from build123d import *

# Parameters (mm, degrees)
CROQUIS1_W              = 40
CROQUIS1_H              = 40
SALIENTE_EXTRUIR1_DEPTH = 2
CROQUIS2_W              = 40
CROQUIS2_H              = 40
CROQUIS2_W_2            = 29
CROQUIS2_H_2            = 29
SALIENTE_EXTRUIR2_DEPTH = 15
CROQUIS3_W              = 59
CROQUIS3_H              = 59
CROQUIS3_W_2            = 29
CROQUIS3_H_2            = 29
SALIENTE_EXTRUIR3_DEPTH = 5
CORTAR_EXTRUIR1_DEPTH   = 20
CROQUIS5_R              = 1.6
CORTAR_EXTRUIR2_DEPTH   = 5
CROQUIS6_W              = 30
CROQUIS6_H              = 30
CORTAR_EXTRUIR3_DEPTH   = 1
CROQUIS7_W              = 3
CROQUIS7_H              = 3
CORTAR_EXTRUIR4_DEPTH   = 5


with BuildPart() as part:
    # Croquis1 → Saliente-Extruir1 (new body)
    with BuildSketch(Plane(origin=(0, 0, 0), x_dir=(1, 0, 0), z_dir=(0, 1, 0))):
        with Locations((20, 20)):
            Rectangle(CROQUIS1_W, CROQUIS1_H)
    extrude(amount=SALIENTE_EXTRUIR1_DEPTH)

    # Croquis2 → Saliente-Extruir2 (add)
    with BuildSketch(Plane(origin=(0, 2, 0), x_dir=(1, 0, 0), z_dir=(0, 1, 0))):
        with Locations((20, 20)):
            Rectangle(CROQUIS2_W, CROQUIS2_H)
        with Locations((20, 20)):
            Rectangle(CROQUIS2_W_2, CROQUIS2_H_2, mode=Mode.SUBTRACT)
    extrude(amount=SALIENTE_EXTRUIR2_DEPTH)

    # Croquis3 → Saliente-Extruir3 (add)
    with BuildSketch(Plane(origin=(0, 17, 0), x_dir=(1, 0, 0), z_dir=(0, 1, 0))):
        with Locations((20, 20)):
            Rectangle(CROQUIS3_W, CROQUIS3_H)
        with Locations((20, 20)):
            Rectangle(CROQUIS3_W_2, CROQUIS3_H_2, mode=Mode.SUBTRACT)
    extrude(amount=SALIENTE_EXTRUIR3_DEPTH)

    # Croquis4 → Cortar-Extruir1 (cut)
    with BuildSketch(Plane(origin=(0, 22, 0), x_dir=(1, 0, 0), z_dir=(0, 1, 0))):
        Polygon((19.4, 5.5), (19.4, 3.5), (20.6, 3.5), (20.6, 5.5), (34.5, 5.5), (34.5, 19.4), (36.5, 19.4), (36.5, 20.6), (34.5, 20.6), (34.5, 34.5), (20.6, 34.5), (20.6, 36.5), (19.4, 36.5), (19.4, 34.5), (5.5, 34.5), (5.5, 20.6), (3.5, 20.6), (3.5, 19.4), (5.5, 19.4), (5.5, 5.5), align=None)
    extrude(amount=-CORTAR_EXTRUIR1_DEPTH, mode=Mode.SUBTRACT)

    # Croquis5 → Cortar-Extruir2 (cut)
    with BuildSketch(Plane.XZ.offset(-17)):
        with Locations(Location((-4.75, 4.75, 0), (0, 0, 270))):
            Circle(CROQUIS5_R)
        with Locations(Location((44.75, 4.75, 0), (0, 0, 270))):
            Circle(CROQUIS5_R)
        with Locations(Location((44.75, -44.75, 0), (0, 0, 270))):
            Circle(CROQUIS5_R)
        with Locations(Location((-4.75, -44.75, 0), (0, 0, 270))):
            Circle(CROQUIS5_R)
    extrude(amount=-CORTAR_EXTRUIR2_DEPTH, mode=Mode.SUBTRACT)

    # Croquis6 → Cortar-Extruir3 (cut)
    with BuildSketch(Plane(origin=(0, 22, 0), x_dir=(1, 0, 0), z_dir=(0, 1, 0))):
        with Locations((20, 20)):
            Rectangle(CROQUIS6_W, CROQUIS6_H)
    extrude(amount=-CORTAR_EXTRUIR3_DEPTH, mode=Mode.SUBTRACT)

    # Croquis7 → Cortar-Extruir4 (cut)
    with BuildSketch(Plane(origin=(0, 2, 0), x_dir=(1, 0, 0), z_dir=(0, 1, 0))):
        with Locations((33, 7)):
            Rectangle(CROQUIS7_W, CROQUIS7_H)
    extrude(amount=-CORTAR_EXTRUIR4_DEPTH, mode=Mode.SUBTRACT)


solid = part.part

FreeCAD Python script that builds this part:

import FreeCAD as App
import Part
import Sketcher

V = App.Vector
Q = App.Units.Quantity

doc = App.newDocument("Part")
params = doc.addObject("Spreadsheet::Sheet", "Params")
for row, (alias, value) in enumerate([
    ("sketch1_width", "40 mm"),
    ("pad1_length", "2 mm"),
    ("sketch2_width", "40 mm"),
    ("sketch2_width2", "29 mm"),
    ("pad2_length", "15 mm"),
    ("sketch3_width", "59 mm"),
    ("sketch3_width2", "29 mm"),
    ("pad3_length", "5 mm"),
    ("sketch4_width", "2 mm"),
    ("sketch4_width2", "1.2 mm"),
    ("sketch4_width3", "13.9 mm"),
    ("pocket1_length", "20 mm"),
    ("sketch5_diameter", "3.2 mm"),
    ("pocket2_length", "5 mm"),
    ("sketch6_width", "30 mm"),
    ("pocket3_length", "1 mm"),
    ("sketch7_width", "3 mm"),
    ("pocket4_length", "5 mm"),
], start=1):
    params.set(f"A{row}", alias)
    params.set(f"B{row}", "=" + value)
    params.setAlias(f"B{row}", alias)

body = doc.addObject("PartDesign::Body", "Body")

sketch1 = body.newObject("Sketcher::SketchObject", "Sketch")
sketch1.AttachmentSupport = (doc.getObject("XZ_Plane"), [""])
sketch1.MapMode = "FlatFace"
sketch1.addGeometry(Part.LineSegment(V(0, -40, 0), V(0, 0, 0)), False)
sketch1.addGeometry(Part.LineSegment(V(0, 0, 0), V(40, 0, 0)), False)
sketch1.addGeometry(Part.LineSegment(V(40, 0, 0), V(40, -40, 0)), False)
sketch1.addGeometry(Part.LineSegment(V(40, -40, 0), V(0, -40, 0)), False)
sketch1.addConstraint(Sketcher.Constraint("Coincident", 0, 2, 1, 1))
sketch1.addConstraint(Sketcher.Constraint("Coincident", 1, 2, 2, 1))
sketch1.addConstraint(Sketcher.Constraint("Coincident", 2, 2, 3, 1))
sketch1.addConstraint(Sketcher.Constraint("Coincident", 3, 2, 0, 1))
sketch1.addConstraint(Sketcher.Constraint("Vertical", 0))
sketch1.addConstraint(Sketcher.Constraint("Horizontal", 1))
sketch1.addConstraint(Sketcher.Constraint("Vertical", 2))
sketch1.addConstraint(Sketcher.Constraint("Horizontal", 3))
sketch1.addConstraint(Sketcher.Constraint("Coincident", 0, 2, -1, 1))
sketch1.addConstraint(Sketcher.Constraint("Equal", 3, 0))
sketch1.addConstraint(Sketcher.Constraint("DistanceX", 1, 1, 1, 2, Q("40 mm")))
sketch1.setExpression("Constraints[10]", "Params.sketch1_width")
pad1 = body.newObject("PartDesign::Pad", "Pad")
pad1.Profile = sketch1
pad1.setExpression("Length", "Params.pad1_length")
pad1.Reversed = True

sketch2 = body.newObject("Sketcher::SketchObject", "Sketch001")
sketch2.AttachmentSupport = (doc.getObject("XZ_Plane"), [""])
sketch2.MapMode = "FlatFace"
sketch2.AttachmentOffset = App.Placement(V(0, 0, -2), App.Rotation())
sketch2.addGeometry(Part.LineSegment(V(0, -40, 0), V(0, 0, 0)), False)
sketch2.addGeometry(Part.LineSegment(V(0, 0, 0), V(40, 0, 0)), False)
sketch2.addGeometry(Part.LineSegment(V(40, 0, 0), V(40, -40, 0)), False)
sketch2.addGeometry(Part.LineSegment(V(40, -40, 0), V(0, -40, 0)), False)
sketch2.addGeometry(Part.LineSegment(V(34, -6, 0), V(6, -6, 0)), False)
sketch2.addGeometry(Part.LineSegment(V(6, -6, 0), V(6, -34, 0)), False)
sketch2.addGeometry(Part.LineSegment(V(6, -34, 0), V(34, -34, 0)), False)
sketch2.addGeometry(Part.LineSegment(V(34, -34, 0), V(34, -6, 0)), False)
sketch2.addConstraint(Sketcher.Constraint("Coincident", 0, 2, 1, 1))
sketch2.addConstraint(Sketcher.Constraint("Coincident", 1, 2, 2, 1))
sketch2.addConstraint(Sketcher.Constraint("Coincident", 2, 2, 3, 1))
sketch2.addConstraint(Sketcher.Constraint("Coincident", 3, 2, 0, 1))
sketch2.addConstraint(Sketcher.Constraint("Coincident", 4, 2, 5, 1))
sketch2.addConstraint(Sketcher.Constraint("Coincident", 5, 2, 6, 1))
sketch2.addConstraint(Sketcher.Constraint("Coincident", 6, 2, 7, 1))
sketch2.addConstraint(Sketcher.Constraint("Coincident", 7, 2, 4, 1))
sketch2.addConstraint(Sketcher.Constraint("Vertical", 0))
sketch2.addConstraint(Sketcher.Constraint("Horizontal", 1))
sketch2.addConstraint(Sketcher.Constraint("Vertical", 2))
sketch2.addConstraint(Sketcher.Constraint("Horizontal", 3))
sketch2.addConstraint(Sketcher.Constraint("Horizontal", 4))
sketch2.addConstraint(Sketcher.Constraint("Vertical", 5))
sketch2.addConstraint(Sketcher.Constraint("Horizontal", 6))
sketch2.addConstraint(Sketcher.Constraint("Vertical", 7))
sketch2.addConstraint(Sketcher.Constraint("Coincident", 0, 2, -1, 1))
sketch2.addConstraint(Sketcher.Constraint("Equal", 3, 0))
sketch2.addConstraint(Sketcher.Constraint("Equal", 6, 5))
sketch2.addConstraint(Sketcher.Constraint("DistanceX", 1, 1, 1, 2, Q("40 mm")))
sketch2.addConstraint(Sketcher.Constraint("DistanceX", 4, 2, 4, 1, Q("29 mm")))
sketch2.addConstraint(Sketcher.Constraint("DistanceX", -1, 1, 4, 2, Q("5.5 mm")))
sketch2.addConstraint(Sketcher.Constraint("DistanceY", 4, 2, -1, 1, Q("5.5 mm")))
sketch2.setExpression("Constraints[19]", "Params.sketch2_width")
sketch2.setExpression("Constraints[20]", "Params.sketch2_width2")
pad2 = body.newObject("PartDesign::Pad", "Pad001")
pad2.Profile = sketch2
pad2.setExpression("Length", "Params.pad2_length")
pad2.Reversed = True

sketch3 = body.newObject("Sketcher::SketchObject", "Sketch002")
sketch3.AttachmentSupport = (doc.getObject("XZ_Plane"), [""])
sketch3.MapMode = "FlatFace"
sketch3.AttachmentOffset = App.Placement(V(0, 0, -17), App.Rotation())
sketch3.addGeometry(Part.LineSegment(V(-10, -50, 0), V(-10, 10, 0)), False)
sketch3.addGeometry(Part.LineSegment(V(-10, 10, 0), V(50, 10, 0)), False)
sketch3.addGeometry(Part.LineSegment(V(50, 10, 0), V(50, -50, 0)), False)
sketch3.addGeometry(Part.LineSegment(V(50, -50, 0), V(-10, -50, 0)), False)
sketch3.addGeometry(Part.LineSegment(V(34, -6, 0), V(6, -6, 0)), False)
sketch3.addGeometry(Part.LineSegment(V(6, -6, 0), V(6, -34, 0)), False)
sketch3.addGeometry(Part.LineSegment(V(6, -34, 0), V(34, -34, 0)), False)
sketch3.addGeometry(Part.LineSegment(V(34, -34, 0), V(34, -6, 0)), False)
sketch3.addConstraint(Sketcher.Constraint("Coincident", 0, 2, 1, 1))
sketch3.addConstraint(Sketcher.Constraint("Coincident", 1, 2, 2, 1))
sketch3.addConstraint(Sketcher.Constraint("Coincident", 2, 2, 3, 1))
sketch3.addConstraint(Sketcher.Constraint("Coincident", 3, 2, 0, 1))
sketch3.addConstraint(Sketcher.Constraint("Coincident", 4, 2, 5, 1))
sketch3.addConstraint(Sketcher.Constraint("Coincident", 5, 2, 6, 1))
sketch3.addConstraint(Sketcher.Constraint("Coincident", 6, 2, 7, 1))
sketch3.addConstraint(Sketcher.Constraint("Coincident", 7, 2, 4, 1))
sketch3.addConstraint(Sketcher.Constraint("Vertical", 0))
sketch3.addConstraint(Sketcher.Constraint("Horizontal", 1))
sketch3.addConstraint(Sketcher.Constraint("Vertical", 2))
sketch3.addConstraint(Sketcher.Constraint("Horizontal", 3))
sketch3.addConstraint(Sketcher.Constraint("Horizontal", 4))
sketch3.addConstraint(Sketcher.Constraint("Vertical", 5))
sketch3.addConstraint(Sketcher.Constraint("Horizontal", 6))
sketch3.addConstraint(Sketcher.Constraint("Vertical", 7))
sketch3.addConstraint(Sketcher.Constraint("Equal", 3, 0))
sketch3.addConstraint(Sketcher.Constraint("Equal", 6, 5))
sketch3.addConstraint(Sketcher.Constraint("DistanceX", 1, 1, 1, 2, Q("59 mm")))
sketch3.addConstraint(Sketcher.Constraint("DistanceX", 4, 2, 4, 1, Q("29 mm")))
sketch3.addConstraint(Sketcher.Constraint("DistanceX", 0, 2, 4, 2, Q("15 mm")))
sketch3.addConstraint(Sketcher.Constraint("DistanceY", 4, 2, 0, 2, Q("15 mm")))
sketch3.addConstraint(Sketcher.Constraint("DistanceX", 0, 2, -1, 1, Q("9.5 mm")))
sketch3.addConstraint(Sketcher.Constraint("DistanceY", -1, 1, 0, 2, Q("9.5 mm")))
sketch3.setExpression("Constraints[18]", "Params.sketch3_width")
sketch3.setExpression("Constraints[19]", "Params.sketch3_width2")
pad3 = body.newObject("PartDesign::Pad", "Pad002")
pad3.Profile = sketch3
pad3.setExpression("Length", "Params.pad3_length")
pad3.Reversed = True

sketch4 = body.newObject("Sketcher::SketchObject", "Sketch003")
sketch4.AttachmentSupport = (doc.getObject("XZ_Plane"), [""])
sketch4.MapMode = "FlatFace"
sketch4.AttachmentOffset = App.Placement(V(0, 0, -22), App.Rotation())
sketch4.addGeometry(Part.LineSegment(V(19.4, -5.5, 0), V(19.4, -3.5, 0)), False)
sketch4.addGeometry(Part.LineSegment(V(19.4, -3.5, 0), V(20.6, -3.5, 0)), False)
sketch4.addGeometry(Part.LineSegment(V(20.6, -3.5, 0), V(20.6, -5.5, 0)), False)
sketch4.addGeometry(Part.LineSegment(V(20.6, -5.5, 0), V(34.5, -5.5, 0)), False)
sketch4.addGeometry(Part.LineSegment(V(34.5, -5.5, 0), V(34.5, -19.4, 0)), False)
sketch4.addGeometry(Part.LineSegment(V(34.5, -19.4, 0), V(36.5, -19.4, 0)), False)
sketch4.addGeometry(Part.LineSegment(V(36.5, -19.4, 0), V(36.5, -20.6, 0)), False)
sketch4.addGeometry(Part.LineSegment(V(36.5, -20.6, 0), V(34.5, -20.6, 0)), False)
sketch4.addGeometry(Part.LineSegment(V(34.5, -20.6, 0), V(34.5, -34.5, 0)), False)
sketch4.addGeometry(Part.LineSegment(V(34.5, -34.5, 0), V(20.6, -34.5, 0)), False)
sketch4.addGeometry(Part.LineSegment(V(20.6, -34.5, 0), V(20.6, -36.5, 0)), False)
sketch4.addGeometry(Part.LineSegment(V(20.6, -36.5, 0), V(19.4, -36.5, 0)), False)
sketch4.addGeometry(Part.LineSegment(V(19.4, -36.5, 0), V(19.4, -34.5, 0)), False)
sketch4.addGeometry(Part.LineSegment(V(19.4, -34.5, 0), V(5.5, -34.5, 0)), False)
sketch4.addGeometry(Part.LineSegment(V(5.5, -34.5, 0), V(5.5, -20.6, 0)), False)
sketch4.addGeometry(Part.LineSegment(V(5.5, -20.6, 0), V(3.5, -20.6, 0)), False)
sketch4.addGeometry(Part.LineSegment(V(3.5, -20.6, 0), V(3.5, -19.4, 0)), False)
sketch4.addGeometry(Part.LineSegment(V(3.5, -19.4, 0), V(5.5, -19.4, 0)), False)
sketch4.addGeometry(Part.LineSegment(V(5.5, -19.4, 0), V(5.5, -5.5, 0)), False)
sketch4.addGeometry(Part.LineSegment(V(5.5, -5.5, 0), V(19.4, -5.5, 0)), False)
sketch4.addConstraint(Sketcher.Constraint("Coincident", 0, 2, 1, 1))
sketch4.addConstraint(Sketcher.Constraint("Coincident", 1, 2, 2, 1))
sketch4.addConstraint(Sketcher.Constraint("Coincident", 2, 2, 3, 1))
sketch4.addConstraint(Sketcher.Constraint("Coincident", 3, 2, 4, 1))
sketch4.addConstraint(Sketcher.Constraint("Coincident", 4, 2, 5, 1))
sketch4.addConstraint(Sketcher.Constraint("Coincident", 5, 2, 6, 1))
sketch4.addConstraint(Sketcher.Constraint("Coincident", 6, 2, 7, 1))
sketch4.addConstraint(Sketcher.Constraint("Coincident", 7, 2, 8, 1))
sketch4.addConstraint(Sketcher.Constraint("Coincident", 8, 2, 9, 1))
sketch4.addConstraint(Sketcher.Constraint("Coincident", 9, 2, 10, 1))
sketch4.addConstraint(Sketcher.Constraint("Coincident", 10, 2, 11, 1))
sketch4.addConstraint(Sketcher.Constraint("Coincident", 11, 2, 12, 1))
sketch4.addConstraint(Sketcher.Constraint("Coincident", 12, 2, 13, 1))
sketch4.addConstraint(Sketcher.Constraint("Coincident", 13, 2, 14, 1))
sketch4.addConstraint(Sketcher.Constraint("Coincident", 14, 2, 15, 1))
sketch4.addConstraint(Sketcher.Constraint("Coincident", 15, 2, 16, 1))
sketch4.addConstraint(Sketcher.Constraint("Coincident", 16, 2, 17, 1))
sketch4.addConstraint(Sketcher.Constraint("Coincident", 17, 2, 18, 1))
sketch4.addConstraint(Sketcher.Constraint("Coincident", 18, 2, 19, 1))
sketch4.addConstraint(Sketcher.Constraint("Coincident", 19, 2, 0, 1))
sketch4.addConstraint(Sketcher.Constraint("Vertical", 0))
sketch4.addConstraint(Sketcher.Constraint("Horizontal", 1))
sketch4.addConstraint(Sketcher.Constraint("Vertical", 2))
sketch4.addConstraint(Sketcher.Constraint("Horizontal", 3))
sketch4.addConstraint(Sketcher.Constraint("Vertical", 4))
sketch4.addConstraint(Sketcher.Constraint("Horizontal", 5))
sketch4.addConstraint(Sketcher.Constraint("Vertical", 6))
sketch4.addConstraint(Sketcher.Constraint("Horizontal", 7))
sketch4.addConstraint(Sketcher.Constraint("Vertical", 8))
sketch4.addConstraint(Sketcher.Constraint("Horizontal", 9))
sketch4.addConstraint(Sketcher.Constraint("Vertical", 10))
sketch4.addConstraint(Sketcher.Constraint("Horizontal", 11))
sketch4.addConstraint(Sketcher.Constraint("Vertical", 12))
sketch4.addConstraint(Sketcher.Constraint("Horizontal", 13))
sketch4.addConstraint(Sketcher.Constraint("Vertical", 14))
sketch4.addConstraint(Sketcher.Constraint("Horizontal", 15))
sketch4.addConstraint(Sketcher.Constraint("Vertical", 16))
sketch4.addConstraint(Sketcher.Constraint("Horizontal", 17))
sketch4.addConstraint(Sketcher.Constraint("Vertical", 18))
sketch4.addConstraint(Sketcher.Constraint("Horizontal", 19))
sketch4.addConstraint(Sketcher.Constraint("Horizontal", 9, 2, 12, 2))
sketch4.addConstraint(Sketcher.Constraint("Horizontal", 7, 2, 14, 2))
sketch4.addConstraint(Sketcher.Constraint("Horizontal", 5, 2, 16, 2))
sketch4.addConstraint(Sketcher.Constraint("Horizontal", 3, 2, 18, 2))
sketch4.addConstraint(Sketcher.Constraint("Vertical", 4, 2, 7, 2))
sketch4.addConstraint(Sketcher.Constraint("Vertical", 2, 2, 9, 2))
sketch4.addConstraint(Sketcher.Constraint("Vertical", 0, 2, 11, 2))
sketch4.addConstraint(Sketcher.Constraint("Vertical", 14, 2, 17, 2))
sketch4.addConstraint(Sketcher.Constraint("Equal", 9, 13))
sketch4.addConstraint(Sketcher.Constraint("Equal", 7, 15))
sketch4.addConstraint(Sketcher.Constraint("Equal", 17, 0))
sketch4.addConstraint(Sketcher.Constraint("Equal", 19, 4))
sketch4.addConstraint(Sketcher.Constraint("Equal", 11, 6))
sketch4.addConstraint(Sketcher.Constraint("Equal", 4, 8))
sketch4.addConstraint(Sketcher.Constraint("Equal", 2, 10))
sketch4.addConstraint(Sketcher.Constraint("DistanceX", 5, 1, 5, 2, Q("2 mm")))
sketch4.addConstraint(Sketcher.Constraint("DistanceX", 1, 1, 1, 2, Q("1.2 mm")))
sketch4.addConstraint(Sketcher.Constraint("DistanceX", 3, 1, 3, 2, Q("13.9 mm")))
sketch4.addConstraint(Sketcher.Constraint("DistanceX", -1, 1, 0, 2, Q("19.4 mm")))
sketch4.addConstraint(Sketcher.Constraint("DistanceY", 0, 2, -1, 1, Q("3.5 mm")))
sketch4.setExpression("Constraints[55]", "Params.sketch4_width")
sketch4.setExpression("Constraints[56]", "Params.sketch4_width2")
sketch4.setExpression("Constraints[57]", "Params.sketch4_width3")
pocket1 = body.newObject("PartDesign::Pocket", "Pocket")
pocket1.Profile = sketch4
pocket1.setExpression("Length", "Params.pocket1_length")
pocket1.Reversed = True

sketch5 = body.newObject("Sketcher::SketchObject", "Sketch004")
sketch5.AttachmentSupport = (doc.getObject("XZ_Plane"), [""])
sketch5.MapMode = "FlatFace"
sketch5.AttachmentOffset = App.Placement(V(0, 0, -17), App.Rotation())
sketch5.addGeometry(Part.Circle(V(-4.8, 4.8, 0), V(0, 0, 1), 1.6), False)
sketch5.addGeometry(Part.Circle(V(44.8, 4.8, 0), V(0, 0, 1), 1.6), False)
sketch5.addGeometry(Part.Circle(V(44.8, -44.8, 0), V(0, 0, 1), 1.6), False)
sketch5.addGeometry(Part.Circle(V(-4.8, -44.8, 0), V(0, 0, 1), 1.6), False)
sketch5.addConstraint(Sketcher.Constraint("Equal", 0, 1))
sketch5.addConstraint(Sketcher.Constraint("Equal", 1, 2))
sketch5.addConstraint(Sketcher.Constraint("Equal", 2, 3))
sketch5.addConstraint(Sketcher.Constraint("Horizontal", 0, 3, 1, 3))
sketch5.addConstraint(Sketcher.Constraint("Horizontal", 2, 3, 3, 3))
sketch5.addConstraint(Sketcher.Constraint("Vertical", 1, 3, 2, 3))
sketch5.addConstraint(Sketcher.Constraint("Vertical", 0, 3, 3, 3))
sketch5.addConstraint(Sketcher.Constraint("Diameter", 0, Q("3.2 mm")))
sketch5.addConstraint(Sketcher.Constraint("DistanceX", 0, 3, 1, 3, Q("49.5 mm")))
sketch5.addConstraint(Sketcher.Constraint("DistanceY", 2, 3, 1, 3, Q("49.5 mm")))
sketch5.addConstraint(Sketcher.Constraint("DistanceX", 0, 3, -1, 1, Q("4.75 mm")))
sketch5.addConstraint(Sketcher.Constraint("DistanceY", -1, 1, 0, 3, Q("4.75 mm")))
sketch5.setExpression("Constraints[7]", "Params.sketch5_diameter")
pocket2 = body.newObject("PartDesign::Pocket", "Pocket001")
pocket2.Profile = sketch5
pocket2.setExpression("Length", "Params.pocket2_length")

sketch6 = body.newObject("Sketcher::SketchObject", "Sketch005")
sketch6.AttachmentSupport = (doc.getObject("XZ_Plane"), [""])
sketch6.MapMode = "FlatFace"
sketch6.AttachmentOffset = App.Placement(V(0, 0, -22), App.Rotation())
sketch6.addGeometry(Part.LineSegment(V(5, -35, 0), V(5, -5, 0)), False)
sketch6.addGeometry(Part.LineSegment(V(5, -5, 0), V(35, -5, 0)), False)
sketch6.addGeometry(Part.LineSegment(V(35, -5, 0), V(35, -35, 0)), False)
sketch6.addGeometry(Part.LineSegment(V(35, -35, 0), V(5, -35, 0)), False)
sketch6.addConstraint(Sketcher.Constraint("Coincident", 0, 2, 1, 1))
sketch6.addConstraint(Sketcher.Constraint("Coincident", 1, 2, 2, 1))
sketch6.addConstraint(Sketcher.Constraint("Coincident", 2, 2, 3, 1))
sketch6.addConstraint(Sketcher.Constraint("Coincident", 3, 2, 0, 1))
sketch6.addConstraint(Sketcher.Constraint("Vertical", 0))
sketch6.addConstraint(Sketcher.Constraint("Horizontal", 1))
sketch6.addConstraint(Sketcher.Constraint("Vertical", 2))
sketch6.addConstraint(Sketcher.Constraint("Horizontal", 3))
sketch6.addConstraint(Sketcher.Constraint("Equal", 3, 0))
sketch6.addConstraint(Sketcher.Constraint("DistanceX", 1, 1, 1, 2, Q("30 mm")))
sketch6.addConstraint(Sketcher.Constraint("DistanceX", -1, 1, 0, 2, Q("5 mm")))
sketch6.addConstraint(Sketcher.Constraint("DistanceY", 0, 2, -1, 1, Q("5 mm")))
sketch6.setExpression("Constraints[9]", "Params.sketch6_width")
pocket3 = body.newObject("PartDesign::Pocket", "Pocket002")
pocket3.Profile = sketch6
pocket3.setExpression("Length", "Params.pocket3_length")
pocket3.Reversed = True

sketch7 = body.newObject("Sketcher::SketchObject", "Sketch006")
sketch7.AttachmentSupport = (doc.getObject("XZ_Plane"), [""])
sketch7.MapMode = "FlatFace"
sketch7.AttachmentOffset = App.Placement(V(0, 0, -2), App.Rotation())
sketch7.addGeometry(Part.LineSegment(V(31.5, -8.5, 0), V(31.5, -5.5, 0)), False)
sketch7.addGeometry(Part.LineSegment(V(31.5, -5.5, 0), V(34.5, -5.5, 0)), False)
sketch7.addGeometry(Part.LineSegment(V(34.5, -5.5, 0), V(34.5, -8.5, 0)), False)
sketch7.addGeometry(Part.LineSegment(V(34.5, -8.5, 0), V(31.5, -8.5, 0)), False)
sketch7.addConstraint(Sketcher.Constraint("Coincident", 0, 2, 1, 1))
sketch7.addConstraint(Sketcher.Constraint("Coincident", 1, 2, 2, 1))
sketch7.addConstraint(Sketcher.Constraint("Coincident", 2, 2, 3, 1))
sketch7.addConstraint(Sketcher.Constraint("Coincident", 3, 2, 0, 1))
sketch7.addConstraint(Sketcher.Constraint("Vertical", 0))
sketch7.addConstraint(Sketcher.Constraint("Horizontal", 1))
sketch7.addConstraint(Sketcher.Constraint("Vertical", 2))
sketch7.addConstraint(Sketcher.Constraint("Horizontal", 3))
sketch7.addConstraint(Sketcher.Constraint("Equal", 3, 0))
sketch7.addConstraint(Sketcher.Constraint("DistanceX", 1, 1, 1, 2, Q("3 mm")))
sketch7.addConstraint(Sketcher.Constraint("DistanceX", -1, 1, 0, 2, Q("31.5 mm")))
sketch7.addConstraint(Sketcher.Constraint("DistanceY", 0, 2, -1, 1, Q("5.5 mm")))
sketch7.setExpression("Constraints[9]", "Params.sketch7_width")
pocket4 = body.newObject("PartDesign::Pocket", "Pocket003")
pocket4.Profile = sketch7
pocket4.setExpression("Length", "Params.pocket4_length")
pocket4.Reversed = True

doc.recompute()
